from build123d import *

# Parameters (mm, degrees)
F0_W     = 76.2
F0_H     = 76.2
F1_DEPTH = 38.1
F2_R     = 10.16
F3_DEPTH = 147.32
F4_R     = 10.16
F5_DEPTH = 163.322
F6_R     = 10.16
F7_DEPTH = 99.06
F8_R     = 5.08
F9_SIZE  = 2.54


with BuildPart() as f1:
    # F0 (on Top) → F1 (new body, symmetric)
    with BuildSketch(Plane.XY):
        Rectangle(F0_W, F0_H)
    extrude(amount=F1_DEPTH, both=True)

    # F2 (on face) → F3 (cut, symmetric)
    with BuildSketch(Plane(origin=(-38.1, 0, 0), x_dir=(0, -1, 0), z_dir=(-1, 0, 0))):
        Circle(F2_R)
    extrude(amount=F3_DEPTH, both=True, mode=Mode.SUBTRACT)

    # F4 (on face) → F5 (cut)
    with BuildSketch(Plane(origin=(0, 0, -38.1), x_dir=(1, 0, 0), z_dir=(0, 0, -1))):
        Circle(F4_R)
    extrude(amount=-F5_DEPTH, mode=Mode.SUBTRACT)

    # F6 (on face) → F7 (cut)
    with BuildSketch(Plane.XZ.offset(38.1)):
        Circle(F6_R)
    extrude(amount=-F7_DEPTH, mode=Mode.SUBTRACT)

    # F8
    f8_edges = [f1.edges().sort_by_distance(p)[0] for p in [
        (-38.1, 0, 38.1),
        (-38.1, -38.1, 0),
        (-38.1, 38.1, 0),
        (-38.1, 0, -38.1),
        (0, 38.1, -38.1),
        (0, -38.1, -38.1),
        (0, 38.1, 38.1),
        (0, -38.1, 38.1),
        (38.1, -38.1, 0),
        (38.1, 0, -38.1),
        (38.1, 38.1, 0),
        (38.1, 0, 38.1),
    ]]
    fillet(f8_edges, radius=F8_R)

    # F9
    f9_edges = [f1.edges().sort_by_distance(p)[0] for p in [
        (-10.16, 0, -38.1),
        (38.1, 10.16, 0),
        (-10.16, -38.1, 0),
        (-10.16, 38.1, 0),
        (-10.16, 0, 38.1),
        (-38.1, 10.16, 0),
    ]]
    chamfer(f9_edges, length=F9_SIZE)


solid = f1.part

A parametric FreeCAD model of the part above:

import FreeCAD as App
import Part
import Sketcher

V = App.Vector
Q = App.Units.Quantity


def edges_at(feature, points):
    """Names of the edges that pass closest to the given points."""
    edges = feature.Shape.Edges
    near = lambda p: min(range(len(edges)), key=lambda i: edges[i].distToShape(Part.Vertex(*p))[0])
    return sorted({f"Edge{near(p) + 1}" for p in points})

doc = App.newDocument("Part")
body = doc.addObject("PartDesign::Body", "Body")

sketch1 = doc.addObject("Sketcher::SketchObject", "Sketch")
body.addObject(sketch1)
sketch1.AttachmentSupport = (doc.XY_Plane, [""])
sketch1.MapMode = "FlatFace"
sketch1.addGeometry(Part.LineSegment(V(-38, 38, 0), V(-38, -38, 0)), False)
sketch1.addGeometry(Part.LineSegment(V(-38, -38, 0), V(38, -38, 0)), False)
sketch1.addGeometry(Part.LineSegment(V(38, -38, 0), V(38, 38, 0)), False)
sketch1.addGeometry(Part.LineSegment(V(38, 38, 0), V(-38, 38, 0)), False)
sketch1.addConstraint(Sketcher.Constraint("Coincident", 0, 2, 1, 1))
sketch1.addConstraint(Sketcher.Constraint("Coincident", 1, 2, 2, 1))
sketch1.addConstraint(Sketcher.Constraint("Coincident", 2, 2, 3, 1))
sketch1.addConstraint(Sketcher.Constraint("Coincident", 3, 2, 0, 1))
sketch1.addConstraint(Sketcher.Constraint("Vertical", 0))
sketch1.addConstraint(Sketcher.Constraint("Horizontal", 1))
sketch1.addConstraint(Sketcher.Constraint("Vertical", 2))
sketch1.addConstraint(Sketcher.Constraint("Horizontal", 3))
sketch1.addConstraint(Sketcher.Constraint("Symmetric", 0, 2, 2, 2, -1, 1))
sketch1.addConstraint(Sketcher.Constraint("Equal", 3, 0))
sketch1.addConstraint(Sketcher.Constraint("DistanceX", 1, 1, 1, 2, Q("3 in")))
pad1 = doc.addObject("PartDesign::Pad", "Pad")
body.addObject(pad1)
pad1.Profile = sketch1
pad1.Length = Q("3 in")
pad1.Midplane = True

sketch2 = doc.addObject("Sketcher::SketchObject", "Sketch001")
body.addObject(sketch2)
sketch2.AttachmentSupport = (doc.YZ_Plane, [""])
sketch2.MapMode = "FlatFace"
sketch2.AttachmentOffset = App.Placement(V(0, 0, -1.5 * 25.4), App.Rotation())
sketch2.addGeometry(Part.Circle(V(0, 0, 0), V(0, 0, 1), 10), False)
sketch2.addConstraint(Sketcher.Constraint("Coincident", 0, 3, -1, 1))
sketch2.addConstraint(Sketcher.Constraint("Diameter", 0, Q("0.8 in")))
pocket1 = doc.addObject("PartDesign::Pocket", "Pocket")
body.addObject(pocket1)
pocket1.Profile = sketch2
pocket1.Length = Q("11.6 in")
pocket1.Midplane = True

sketch3 = doc.addObject("Sketcher::SketchObject", "Sketch002")
body.addObject(sketch3)
sketch3.AttachmentSupport = (doc.XY_Plane, [""])
sketch3.MapMode = "FlatFace"
sketch3.AttachmentOffset = App.Placement(V(0, 0, -1.5 * 25.4), App.Rotation())
sketch3.addGeometry(Part.Circle(V(0, 0, 0), V(0, 0, 1), 10), False)
sketch3.addConstraint(Sketcher.Constraint("Coincident", 0, 3, -1, 1))
sketch3.addConstraint(Sketcher.Constraint("Diameter", 0, Q("0.8 in")))
pocket2 = doc.addObject("PartDesign::Pocket", "Pocket001")
body.addObject(pocket2)
pocket2.Profile = sketch3
pocket2.Length = Q("6.43 in")
pocket2.Reversed = True

sketch4 = doc.addObject("Sketcher::SketchObject", "Sketch003")
body.addObject(sketch4)
sketch4.AttachmentSupport = (doc.XZ_Plane, [""])
sketch4.MapMode = "FlatFace"
sketch4.AttachmentOffset = App.Placement(V(0, 0, 1.5 * 25.4), App.Rotation())
sketch4.addGeometry(Part.Circle(V(0, 0, 0), V(0, 0, 1), 10), False)
sketch4.addConstraint(Sketcher.Constraint("Coincident", 0, 3, -1, 1))
sketch4.addConstraint(Sketcher.Constraint("Diameter", 0, Q("0.8 in")))
pocket3 = doc.addObject("PartDesign::Pocket", "Pocket002")
body.addObject(pocket3)
pocket3.Profile = sketch4
pocket3.Length = Q("3.9 in")
doc.recompute()

fillet = doc.addObject("PartDesign::Fillet", "Fillet")
body.addObject(fillet)
fillet.Base = (pocket3, edges_at(pocket3, [
    (-38.1, 0, 38.1),
    (-38.1, -38.1, 0),
    (-38.1, 38.1, 0),
    (-38.1, 0, -38.1),
    (0, 38.1, -38.1),
    (0, -38.1, -38.1),
    (0, 38.1, 38.1),
    (0, -38.1, 38.1),
    (38.1, -38.1, 0),
    (38.1, 0, -38.1),
    (38.1, 38.1, 0),
    (38.1, 0, 38.1),
]))
fillet.Radius = Q("0.2 in")
doc.recompute()

chamfer = doc.addObject("PartDesign::Chamfer", "Chamfer")
body.addObject(chamfer)
chamfer.Base = (fillet, edges_at(fillet, [
    (-10.16, 0, -38.1),
    (38.1, 10.16, 0),
    (-10.16, -38.1, 0),
    (-10.16, 38.1, 0),
    (-10.16, 0, 38.1),
    (-38.1, 10.16, 0),
]))
chamfer.Size = Q("0.1 in")

doc.recompute()
